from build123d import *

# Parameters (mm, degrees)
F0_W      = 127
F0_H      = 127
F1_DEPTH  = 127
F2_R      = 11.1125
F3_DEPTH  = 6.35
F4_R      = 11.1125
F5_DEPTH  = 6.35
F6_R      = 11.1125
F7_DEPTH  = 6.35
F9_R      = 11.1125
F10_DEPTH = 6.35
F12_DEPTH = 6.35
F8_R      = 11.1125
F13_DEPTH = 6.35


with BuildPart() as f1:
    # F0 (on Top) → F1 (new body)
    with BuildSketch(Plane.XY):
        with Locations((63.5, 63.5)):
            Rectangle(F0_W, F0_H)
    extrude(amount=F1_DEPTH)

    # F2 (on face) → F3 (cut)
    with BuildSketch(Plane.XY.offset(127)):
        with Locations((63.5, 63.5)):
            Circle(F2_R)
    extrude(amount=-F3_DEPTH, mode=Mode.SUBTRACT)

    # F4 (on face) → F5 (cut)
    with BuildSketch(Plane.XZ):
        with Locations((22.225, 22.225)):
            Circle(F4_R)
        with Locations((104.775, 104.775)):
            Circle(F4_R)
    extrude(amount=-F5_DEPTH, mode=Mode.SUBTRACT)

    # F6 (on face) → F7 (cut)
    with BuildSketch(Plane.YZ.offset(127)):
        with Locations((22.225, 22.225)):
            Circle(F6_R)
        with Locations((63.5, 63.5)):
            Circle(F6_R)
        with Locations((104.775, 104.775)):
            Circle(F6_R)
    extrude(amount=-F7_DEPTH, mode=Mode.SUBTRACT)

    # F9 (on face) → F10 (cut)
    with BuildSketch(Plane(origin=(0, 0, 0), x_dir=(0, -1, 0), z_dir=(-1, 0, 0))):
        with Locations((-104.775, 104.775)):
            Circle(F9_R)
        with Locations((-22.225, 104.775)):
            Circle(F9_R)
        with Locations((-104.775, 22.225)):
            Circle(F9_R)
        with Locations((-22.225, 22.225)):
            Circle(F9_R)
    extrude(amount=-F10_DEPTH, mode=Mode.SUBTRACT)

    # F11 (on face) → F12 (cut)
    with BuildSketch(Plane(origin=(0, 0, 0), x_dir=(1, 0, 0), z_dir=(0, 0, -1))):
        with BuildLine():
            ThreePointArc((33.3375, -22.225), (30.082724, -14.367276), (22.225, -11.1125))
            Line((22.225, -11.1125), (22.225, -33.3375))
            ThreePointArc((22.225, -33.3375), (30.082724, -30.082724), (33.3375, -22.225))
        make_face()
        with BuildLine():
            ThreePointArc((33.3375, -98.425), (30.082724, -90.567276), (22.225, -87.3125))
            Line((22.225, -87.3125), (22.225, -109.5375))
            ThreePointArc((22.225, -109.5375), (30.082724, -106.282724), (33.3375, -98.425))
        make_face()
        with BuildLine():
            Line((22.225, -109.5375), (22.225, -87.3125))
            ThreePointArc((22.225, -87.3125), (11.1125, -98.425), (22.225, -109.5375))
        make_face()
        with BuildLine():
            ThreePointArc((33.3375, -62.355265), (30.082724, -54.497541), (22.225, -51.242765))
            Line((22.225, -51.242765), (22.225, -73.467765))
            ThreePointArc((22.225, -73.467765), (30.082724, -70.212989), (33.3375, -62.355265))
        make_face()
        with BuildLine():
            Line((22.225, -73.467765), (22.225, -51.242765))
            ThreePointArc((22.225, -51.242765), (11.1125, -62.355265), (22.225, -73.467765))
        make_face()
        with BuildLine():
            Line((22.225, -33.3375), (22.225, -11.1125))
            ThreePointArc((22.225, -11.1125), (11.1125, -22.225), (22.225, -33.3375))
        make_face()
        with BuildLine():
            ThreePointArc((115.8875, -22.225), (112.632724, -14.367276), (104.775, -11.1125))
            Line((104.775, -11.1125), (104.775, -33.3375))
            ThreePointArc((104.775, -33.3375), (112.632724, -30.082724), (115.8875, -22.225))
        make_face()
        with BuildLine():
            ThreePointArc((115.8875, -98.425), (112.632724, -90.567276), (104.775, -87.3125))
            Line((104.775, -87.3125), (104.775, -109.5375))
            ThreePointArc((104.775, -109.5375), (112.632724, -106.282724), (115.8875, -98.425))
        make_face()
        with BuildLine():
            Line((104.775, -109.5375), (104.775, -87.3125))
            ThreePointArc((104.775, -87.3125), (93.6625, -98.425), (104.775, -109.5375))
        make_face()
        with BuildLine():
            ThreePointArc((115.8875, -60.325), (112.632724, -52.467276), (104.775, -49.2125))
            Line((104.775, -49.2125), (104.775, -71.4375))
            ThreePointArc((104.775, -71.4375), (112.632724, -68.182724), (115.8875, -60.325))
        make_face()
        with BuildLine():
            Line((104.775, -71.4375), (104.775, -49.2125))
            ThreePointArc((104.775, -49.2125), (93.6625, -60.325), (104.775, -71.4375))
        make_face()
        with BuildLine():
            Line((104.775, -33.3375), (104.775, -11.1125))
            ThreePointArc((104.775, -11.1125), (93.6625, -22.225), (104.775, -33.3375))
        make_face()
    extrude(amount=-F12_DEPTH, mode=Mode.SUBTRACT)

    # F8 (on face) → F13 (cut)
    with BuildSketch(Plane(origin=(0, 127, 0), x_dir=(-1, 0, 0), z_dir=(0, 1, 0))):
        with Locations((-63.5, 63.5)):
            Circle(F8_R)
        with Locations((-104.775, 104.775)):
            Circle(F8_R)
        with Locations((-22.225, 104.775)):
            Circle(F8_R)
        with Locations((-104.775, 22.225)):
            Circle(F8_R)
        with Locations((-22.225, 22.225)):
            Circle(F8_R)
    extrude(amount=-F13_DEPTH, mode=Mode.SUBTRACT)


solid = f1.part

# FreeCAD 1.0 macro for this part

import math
import FreeCAD as App
import Part
import Sketcher
from FreeCAD import Vector
Q = App.Units.Quantity


def add_polygon(sketch, points):
    """Adds a closed chain of lines whose ends are joined by coincident constraints."""
    first, n = sketch.GeometryCount, len(points)
    for a, b in zip(points, points[1:] + points[:1]):
        sketch.addGeometry(Part.LineSegment(App.Vector(*a, 0), App.Vector(*b, 0)), False)
    for i in range(n):
        sketch.addConstraint(Sketcher.Constraint("Coincident", first + i, 2, first + (i + 1) % n, 1))

doc = App.newDocument("Part")
body = doc.addObject("PartDesign::Body", "Body")

# Sketch on XY plane
sketch1 = body.newObject("Sketcher::SketchObject", "Sketch")
sketch1.AttachmentSupport = (doc.getObject("XY_Plane"), [""])
sketch1.MapMode = "FlatFace"
add_polygon(sketch1, [(0, 127), (0, 0), (127, 0), (127, 127)])  # lines 0-3
sketch1.addConstraint(Sketcher.Constraint("Vertical", 0))
sketch1.addConstraint(Sketcher.Constraint("Horizontal", 1))
sketch1.addConstraint(Sketcher.Constraint("Vertical", 2))
sketch1.addConstraint(Sketcher.Constraint("Horizontal", 3))
sketch1.addConstraint(Sketcher.Constraint("Coincident", 0, 2, -1, 1))
sketch1.addConstraint(Sketcher.Constraint("Equal", 3, 0))
sketch1.addConstraint(Sketcher.Constraint("DistanceX", 1, 1, 1, 2, Q("5 in")))
pad1 = body.newObject("PartDesign::Pad", "Pad")
pad1.Profile = sketch1
pad1.Length = Q("5 in")

# Sketch on XY plane
sketch2 = body.newObject("Sketcher::SketchObject", "Sketch001")
sketch2.AttachmentSupport = (doc.getObject("XY_Plane"), [""])
sketch2.MapMode = "FlatFace"
sketch2.AttachmentOffset = App.Placement(Vector(0, 0, 5 * 25.4), App.Rotation())
sketch2.addGeometry(Part.Circle(Vector(64, 64, 0), Vector(0, 0, 1), 11), False)
sketch2.addConstraint(Sketcher.Constraint("Diameter", 0, Q("0.875 in")))
sketch2.addConstraint(Sketcher.Constraint("DistanceX", -1, 1, 0, 3, Q("2.5 in")))
sketch2.addConstraint(Sketcher.Constraint("DistanceY", -1, 1, 0, 3, Q("2.5 in")))
pocket1 = body.newObject("PartDesign::Pocket", "Pocket")
pocket1.Profile = sketch2
pocket1.Length = Q("0.25 in")

# Sketch on XZ plane
sketch3 = body.newObject("Sketcher::SketchObject", "Sketch002")
sketch3.AttachmentSupport = (doc.getObject("XZ_Plane"), [""])
sketch3.MapMode = "FlatFace"
sketch3.addGeometry(Part.Circle(Vector(22, 22, 0), Vector(0, 0, 1), 11), False)
sketch3.addGeometry(Part.Circle(Vector(105, 105, 0), Vector(0, 0, 1), 11), False)
sketch3.addConstraint(Sketcher.Constraint("Equal", 0, 1))
sketch3.addConstraint(Sketcher.Constraint("Diameter", 0, Q("0.875 in")))
sketch3.addConstraint(Sketcher.Constraint("DistanceX", 0, 3, 1, 3, Q("3.25 in")))
sketch3.addConstraint(Sketcher.Constraint("DistanceY", 0, 3, 1, 3, Q("3.25 in")))
sketch3.addConstraint(Sketcher.Constraint("DistanceX", -1, 1, 0, 3, Q("0.875 in")))
sketch3.addConstraint(Sketcher.Constraint("DistanceY", -1, 1, 0, 3, Q("0.875 in")))
pocket2 = body.newObject("PartDesign::Pocket", "Pocket001")
pocket2.Profile = sketch3
pocket2.Length = Q("0.25 in")

# Sketch on YZ plane
sketch4 = body.newObject("Sketcher::SketchObject", "Sketch003")
sketch4.AttachmentSupport = (doc.getObject("YZ_Plane"), [""])
sketch4.MapMode = "FlatFace"
sketch4.AttachmentOffset = App.Placement(Vector(0, 0, 5 * 25.4), App.Rotation())
sketch4.addGeometry(Part.Circle(Vector(22, 22, 0), Vector(0, 0, 1), 11), False)
sketch4.addGeometry(Part.Circle(Vector(64, 64, 0), Vector(0, 0, 1), 11), False)
sketch4.addGeometry(Part.Circle(Vector(105, 105, 0), Vector(0, 0, 1), 11), False)
sketch4.addConstraint(Sketcher.Constraint("Equal", 0, 1))
sketch4.addConstraint(Sketcher.Constraint("Equal", 1, 2))
sketch4.addConstraint(Sketcher.Constraint("Diameter", 0, Q("0.875 in")))
sketch4.addConstraint(Sketcher.Constraint("DistanceX", -1, 1, 1, 3, Q("2.5 in")))
sketch4.addConstraint(Sketcher.Constraint("DistanceY", -1, 1, 1, 3, Q("2.5 in")))
sketch4.addConstraint(Sketcher.Constraint("DistanceX", 0, 3, 2, 3, Q("3.25 in")))
sketch4.addConstraint(Sketcher.Constraint("DistanceY", 0, 3, 2, 3, Q("3.25 in")))
sketch4.addConstraint(Sketcher.Constraint("DistanceX", -1, 1, 0, 3, Q("0.875 in")))
sketch4.addConstraint(Sketcher.Constraint("DistanceY", -1, 1, 0, 3, Q("0.875 in")))
pocket3 = body.newObject("PartDesign::Pocket", "Pocket002")
pocket3.Profile = sketch4
pocket3.Length = Q("0.25 in")

# Sketch on YZ plane
sketch5 = body.newObject("Sketcher::SketchObject", "Sketch004")
sketch5.AttachmentSupport = (doc.getObject("YZ_Plane"), [""])
sketch5.MapMode = "FlatFace"
sketch5.addGeometry(Part.Circle(Vector(105, 105, 0), Vector(0, 0, 1), 11), False)
sketch5.addGeometry(Part.Circle(Vector(22, 105, 0), Vector(0, 0, 1), 11), False)
sketch5.addGeometry(Part.Circle(Vector(105, 22, 0), Vector(0, 0, 1), 11), False)
sketch5.addGeometry(Part.Circle(Vector(22, 22, 0), Vector(0, 0, 1), 11), False)
sketch5.addConstraint(Sketcher.Constraint("Equal", 0, 1))
sketch5.addConstraint(Sketcher.Constraint("Equal", 1, 2))
sketch5.addConstraint(Sketcher.Constraint("Equal", 2, 3))
sketch5.addConstraint(Sketcher.Constraint("Horizontal", 0, 3, 1, 3))
sketch5.addConstraint(Sketcher.Constraint("Horizontal", 2, 3, 3, 3))
sketch5.addConstraint(Sketcher.Constraint("Vertical", 0, 3, 2, 3))
sketch5.addConstraint(Sketcher.Constraint("Vertical", 1, 3, 3, 3))
sketch5.addConstraint(Sketcher.Constraint("Diameter", 0, Q("0.875 in")))
sketch5.addConstraint(Sketcher.Constraint("DistanceX", 1, 3, 0, 3, Q("3.25 in")))
sketch5.addConstraint(Sketcher.Constraint("DistanceY", 2, 3, 0, 3, Q("3.25 in")))
sketch5.addConstraint(Sketcher.Constraint("DistanceX", -1, 1, 0, 3, Q("4.125 in")))
sketch5.addConstraint(Sketcher.Constraint("DistanceY", -1, 1, 0, 3, Q("4.125 in")))
pocket4 = body.newObject("PartDesign::Pocket", "Pocket003")
pocket4.Profile = sketch5
pocket4.Length = Q("0.25 in")
pocket4.Reversed = True

# Sketch on XY plane
sketch6 = body.newObject("Sketcher::SketchObject", "Sketch005")
sketch6.AttachmentSupport = (doc.getObject("XY_Plane"), [""])
sketch6.MapMode = "FlatFace"
sketch6.addGeometry(Part.ArcOfCircle(Part.Circle(Vector(22, 22, 0), Vector(0, 0, 1), 11), math.radians(-90), math.radians(0)), False)
sketch6.addGeometry(Part.ArcOfCircle(Part.Circle(Vector(22, 22, 0), Vector(0, 0, 1), 11), math.radians(90), math.radians(270)), False)
sketch6.addGeometry(Part.ArcOfCircle(Part.Circle(Vector(22, 22, 0), Vector(0, 0, 1), 11), math.radians(0), math.radians(90)), False)
sketch6.addGeometry(Part.ArcOfCircle(Part.Circle(Vector(22, 98, 0), Vector(0, 0, 1), 11), math.radians(-90), math.radians(0)), False)
sketch6.addGeometry(Part.ArcOfCircle(Part.Circle(Vector(22, 98, 0), Vector(0, 0, 1), 11), math.radians(90), math.radians(270)), False)
sketch6.addGeometry(Part.ArcOfCircle(Part.Circle(Vector(22, 98, 0), Vector(0, 0, 1), 11), math.radians(0), math.radians(90)), False)
sketch6.addGeometry(Part.ArcOfCircle(Part.Circle(Vector(22, 62, 0), Vector(0, 0, 1), 11), math.radians(-90), math.radians(0)), False)
sketch6.addGeometry(Part.ArcOfCircle(Part.Circle(Vector(22, 62, 0), Vector(0, 0, 1), 11), math.radians(90), math.radians(270)), False)
sketch6.addGeometry(Part.ArcOfCircle(Part.Circle(Vector(22, 62, 0), Vector(0, 0, 1), 11), math.radians(0), math.radians(90)), False)
sketch6.addGeometry(Part.ArcOfCircle(Part.Circle(Vector(105, 22, 0), Vector(0, 0, 1), 11), math.radians(-90), math.radians(0)), False)
sketch6.addGeometry(Part.ArcOfCircle(Part.Circle(Vector(105, 22, 0), Vector(0, 0, 1), 11), math.radians(90), math.radians(270)), False)
sketch6.addGeometry(Part.ArcOfCircle(Part.Circle(Vector(105, 22, 0), Vector(0, 0, 1), 11), math.radians(0), math.radians(90)), False)
sketch6.addGeometry(Part.ArcOfCircle(Part.Circle(Vector(105, 98, 0), Vector(0, 0, 1), 11), math.radians(-90), math.radians(0)), False)
sketch6.addGeometry(Part.ArcOfCircle(Part.Circle(Vector(105, 98, 0), Vector(0, 0, 1), 11), math.radians(90), math.radians(270)), False)
sketch6.addGeometry(Part.ArcOfCircle(Part.Circle(Vector(105, 98, 0), Vector(0, 0, 1), 11), math.radians(0), math.radians(90)), False)
sketch6.addGeometry(Part.ArcOfCircle(Part.Circle(Vector(105, 60, 0), Vector(0, 0, 1), 11), math.radians(-90), math.radians(0)), False)
sketch6.addGeometry(Part.ArcOfCircle(Part.Circle(Vector(105, 60, 0), Vector(0, 0, 1), 11), math.radians(90), math.radians(270)), False)
sketch6.addGeometry(Part.ArcOfCircle(Part.Circle(Vector(105, 60, 0), Vector(0, 0, 1), 11), math.radians(0), math.radians(90)), False)
sketch6.addConstraint(Sketcher.Constraint("Tangent", 0, 1, 1, 2))
sketch6.addConstraint(Sketcher.Constraint("Tangent", 1, 1, 2, 2))
sketch6.addConstraint(Sketcher.Constraint("Tangent", 2, 1, 0, 2))
sketch6.addConstraint(Sketcher.Constraint("Tangent", 3, 1, 4, 2))
sketch6.addConstraint(Sketcher.Constraint("Tangent", 4, 1, 5, 2))
sketch6.addConstraint(Sketcher.Constraint("Tangent", 5, 1, 3, 2))
sketch6.addConstraint(Sketcher.Constraint("Tangent", 6, 1, 7, 2))
sketch6.addConstraint(Sketcher.Constraint("Tangent", 7, 1, 8, 2))
sketch6.addConstraint(Sketcher.Constraint("Tangent", 8, 1, 6, 2))
sketch6.addConstraint(Sketcher.Constraint("Tangent", 9, 1, 10, 2))
sketch6.addConstraint(Sketcher.Constraint("Tangent", 10, 1, 11, 2))
sketch6.addConstraint(Sketcher.Constraint("Tangent", 11, 1, 9, 2))
sketch6.addConstraint(Sketcher.Constraint("Tangent", 12, 1, 13, 2))
sketch6.addConstraint(Sketcher.Constraint("Tangent", 13, 1, 14, 2))
sketch6.addConstraint(Sketcher.Constraint("Tangent", 14, 1, 12, 2))
sketch6.addConstraint(Sketcher.Constraint("Tangent", 15, 1, 16, 2))
sketch6.addConstraint(Sketcher.Constraint("Tangent", 16, 1, 17, 2))
sketch6.addConstraint(Sketcher.Constraint("Tangent", 17, 1, 15, 2))
sketch6.addConstraint(Sketcher.Constraint("Equal", 2, 3))
sketch6.addConstraint(Sketcher.Constraint("Equal", 5, 6))
sketch6.addConstraint(Sketcher.Constraint("Equal", 8, 9))
sketch6.addConstraint(Sketcher.Constraint("Equal", 11, 12))
sketch6.addConstraint(Sketcher.Constraint("Equal", 14, 15))
sketch6.addConstraint(Sketcher.Constraint("Horizontal", 2, 3, 9, 3))
sketch6.addConstraint(Sketcher.Constraint("Horizontal", 5, 3, 12, 3))
sketch6.addConstraint(Sketcher.Constraint("Horizontal", 11, 3, 2, 1))
sketch6.addConstraint(Sketcher.Constraint("Horizontal", 14, 3, 5, 1))
sketch6.addConstraint(Sketcher.Constraint("Horizontal", 7, 3, 8, 1))
sketch6.addConstraint(Sketcher.Constraint("Horizontal", 2, 1, 11, 1))
sketch6.addConstraint(Sketcher.Constraint("Horizontal", 5, 1, 14, 1))
sketch6.addConstraint(Sketcher.Constraint("Horizontal", 16, 3, 17, 1))
sketch6.addConstraint(Sketcher.Constraint("Vertical", 2, 3, 3, 3))
sketch6.addConstraint(Sketcher.Constraint("Vertical", 5, 3, 6, 3))
sketch6.addConstraint(Sketcher.Constraint("Vertical", 11, 3, 12, 3))
sketch6.addConstraint(Sketcher.Constraint("Vertical", 14, 3, 15, 3))
sketch6.addConstraint(Sketcher.Constraint("Vertical", 8, 3, 0, 1))
sketch6.addConstraint(Sketcher.Constraint("Vertical", 0, 1, 1, 1))
sketch6.addConstraint(Sketcher.Constraint("Vertical", 1, 1, 3, 1))
sketch6.addConstraint(Sketcher.Constraint("Vertical", 3, 1, 4, 1))
sketch6.addConstraint(Sketcher.Constraint("Vertical", 4, 1, 6, 1))
sketch6.addConstraint(Sketcher.Constraint("Vertical", 6, 1, 7, 1))
sketch6.addConstraint(Sketcher.Constraint("Vertical", 17, 3, 9, 1))
sketch6.addConstraint(Sketcher.Constraint("Vertical", 9, 1, 10, 1))
sketch6.addConstraint(Sketcher.Constraint("Vertical", 10, 1, 12, 1))
sketch6.addConstraint(Sketcher.Constraint("Vertical", 12, 1, 13, 1))
sketch6.addConstraint(Sketcher.Constraint("Vertical", 13, 1, 15, 1))
sketch6.addConstraint(Sketcher.Constraint("Vertical", 15, 1, 16, 1))
sketch6.addConstraint(Sketcher.Constraint("Radius", 0, Q("0.4375 in")))
sketch6.addConstraint(Sketcher.Constraint("DistanceY", 0, 3, 3, 3, Q("3 in")))
sketch6.addConstraint(Sketcher.Constraint("DistanceY", 15, 3, 14, 3, Q("1.5 in")))
sketch6.addConstraint(Sketcher.Constraint("DistanceX", 1, 3, 9, 3, Q("3.25 in")))
sketch6.addConstraint(Sketcher.Constraint("DistanceX", -1, 1, 0, 3, Q("0.875 in")))
sketch6.addConstraint(Sketcher.Constraint("DistanceY", -1, 1, 0, 3, Q("0.875 in")))
sketch6.addConstraint(Sketcher.Constraint("DistanceY", -1, 1, 6, 3, Q("62.355265 mm")))
pocket5 = body.newObject("PartDesign::Pocket", "Pocket004")
pocket5.Profile = sketch6
pocket5.Length = Q("0.25 in")
pocket5.Reversed = True

# Sketch on XZ plane
sketch7 = body.newObject("Sketcher::SketchObject", "Sketch006")
sketch7.AttachmentSupport = (doc.getObject("XZ_Plane"), [""])
sketch7.MapMode = "FlatFace"
sketch7.AttachmentOffset = App.Placement(Vector(0, 0, -5 * 25.4), App.Rotation())
sketch7.addGeometry(Part.Circle(Vector(64, 64, 0), Vector(0, 0, 1), 11), False)
sketch7.addGeometry(Part.Circle(Vector(105, 105, 0), Vector(0, 0, 1), 11), False)
sketch7.addGeometry(Part.Circle(Vector(22, 105, 0), Vector(0, 0, 1), 11), False)
sketch7.addGeometry(Part.Circle(Vector(105, 22, 0), Vector(0, 0, 1), 11), False)
sketch7.addGeometry(Part.Circle(Vector(22, 22, 0), Vector(0, 0, 1), 11), False)
sketch7.addConstraint(Sketcher.Constraint("Equal", 0, 1))
sketch7.addConstraint(Sketcher.Constraint("Equal", 1, 2))
sketch7.addConstraint(Sketcher.Constraint("Equal", 2, 3))
sketch7.addConstraint(Sketcher.Constraint("Equal", 3, 4))
sketch7.addConstraint(Sketcher.Constraint("Horizontal", 1, 3, 2, 3))
sketch7.addConstraint(Sketcher.Constraint("Horizontal", 3, 3, 4, 3))
sketch7.addConstraint(Sketcher.Constraint("Vertical", 1, 3, 3, 3))
sketch7.addConstraint(Sketcher.Constraint("Vertical", 2, 3, 4, 3))
sketch7.addConstraint(Sketcher.Constraint("Diameter", 0, Q("0.875 in")))
sketch7.addConstraint(Sketcher.Constraint("DistanceX", -1, 1, 0, 3, Q("2.5 in")))
sketch7.addConstraint(Sketcher.Constraint("DistanceY", -1, 1, 0, 3, Q("2.5 in")))
sketch7.addConstraint(Sketcher.Constraint("DistanceX", 2, 3, 1, 3, Q("3.25 in")))
sketch7.addConstraint(Sketcher.Constraint("DistanceY", 3, 3, 1, 3, Q("3.25 in")))
sketch7.addConstraint(Sketcher.Constraint("DistanceX", -1, 1, 1, 3, Q("4.125 in")))
sketch7.addConstraint(Sketcher.Constraint("DistanceY", -1, 1, 1, 3, Q("4.125 in")))
pocket6 = body.newObject("PartDesign::Pocket", "Pocket005")
pocket6.Profile = sketch7
pocket6.Length = Q("0.25 in")
pocket6.Reversed = True

doc.recompute()
